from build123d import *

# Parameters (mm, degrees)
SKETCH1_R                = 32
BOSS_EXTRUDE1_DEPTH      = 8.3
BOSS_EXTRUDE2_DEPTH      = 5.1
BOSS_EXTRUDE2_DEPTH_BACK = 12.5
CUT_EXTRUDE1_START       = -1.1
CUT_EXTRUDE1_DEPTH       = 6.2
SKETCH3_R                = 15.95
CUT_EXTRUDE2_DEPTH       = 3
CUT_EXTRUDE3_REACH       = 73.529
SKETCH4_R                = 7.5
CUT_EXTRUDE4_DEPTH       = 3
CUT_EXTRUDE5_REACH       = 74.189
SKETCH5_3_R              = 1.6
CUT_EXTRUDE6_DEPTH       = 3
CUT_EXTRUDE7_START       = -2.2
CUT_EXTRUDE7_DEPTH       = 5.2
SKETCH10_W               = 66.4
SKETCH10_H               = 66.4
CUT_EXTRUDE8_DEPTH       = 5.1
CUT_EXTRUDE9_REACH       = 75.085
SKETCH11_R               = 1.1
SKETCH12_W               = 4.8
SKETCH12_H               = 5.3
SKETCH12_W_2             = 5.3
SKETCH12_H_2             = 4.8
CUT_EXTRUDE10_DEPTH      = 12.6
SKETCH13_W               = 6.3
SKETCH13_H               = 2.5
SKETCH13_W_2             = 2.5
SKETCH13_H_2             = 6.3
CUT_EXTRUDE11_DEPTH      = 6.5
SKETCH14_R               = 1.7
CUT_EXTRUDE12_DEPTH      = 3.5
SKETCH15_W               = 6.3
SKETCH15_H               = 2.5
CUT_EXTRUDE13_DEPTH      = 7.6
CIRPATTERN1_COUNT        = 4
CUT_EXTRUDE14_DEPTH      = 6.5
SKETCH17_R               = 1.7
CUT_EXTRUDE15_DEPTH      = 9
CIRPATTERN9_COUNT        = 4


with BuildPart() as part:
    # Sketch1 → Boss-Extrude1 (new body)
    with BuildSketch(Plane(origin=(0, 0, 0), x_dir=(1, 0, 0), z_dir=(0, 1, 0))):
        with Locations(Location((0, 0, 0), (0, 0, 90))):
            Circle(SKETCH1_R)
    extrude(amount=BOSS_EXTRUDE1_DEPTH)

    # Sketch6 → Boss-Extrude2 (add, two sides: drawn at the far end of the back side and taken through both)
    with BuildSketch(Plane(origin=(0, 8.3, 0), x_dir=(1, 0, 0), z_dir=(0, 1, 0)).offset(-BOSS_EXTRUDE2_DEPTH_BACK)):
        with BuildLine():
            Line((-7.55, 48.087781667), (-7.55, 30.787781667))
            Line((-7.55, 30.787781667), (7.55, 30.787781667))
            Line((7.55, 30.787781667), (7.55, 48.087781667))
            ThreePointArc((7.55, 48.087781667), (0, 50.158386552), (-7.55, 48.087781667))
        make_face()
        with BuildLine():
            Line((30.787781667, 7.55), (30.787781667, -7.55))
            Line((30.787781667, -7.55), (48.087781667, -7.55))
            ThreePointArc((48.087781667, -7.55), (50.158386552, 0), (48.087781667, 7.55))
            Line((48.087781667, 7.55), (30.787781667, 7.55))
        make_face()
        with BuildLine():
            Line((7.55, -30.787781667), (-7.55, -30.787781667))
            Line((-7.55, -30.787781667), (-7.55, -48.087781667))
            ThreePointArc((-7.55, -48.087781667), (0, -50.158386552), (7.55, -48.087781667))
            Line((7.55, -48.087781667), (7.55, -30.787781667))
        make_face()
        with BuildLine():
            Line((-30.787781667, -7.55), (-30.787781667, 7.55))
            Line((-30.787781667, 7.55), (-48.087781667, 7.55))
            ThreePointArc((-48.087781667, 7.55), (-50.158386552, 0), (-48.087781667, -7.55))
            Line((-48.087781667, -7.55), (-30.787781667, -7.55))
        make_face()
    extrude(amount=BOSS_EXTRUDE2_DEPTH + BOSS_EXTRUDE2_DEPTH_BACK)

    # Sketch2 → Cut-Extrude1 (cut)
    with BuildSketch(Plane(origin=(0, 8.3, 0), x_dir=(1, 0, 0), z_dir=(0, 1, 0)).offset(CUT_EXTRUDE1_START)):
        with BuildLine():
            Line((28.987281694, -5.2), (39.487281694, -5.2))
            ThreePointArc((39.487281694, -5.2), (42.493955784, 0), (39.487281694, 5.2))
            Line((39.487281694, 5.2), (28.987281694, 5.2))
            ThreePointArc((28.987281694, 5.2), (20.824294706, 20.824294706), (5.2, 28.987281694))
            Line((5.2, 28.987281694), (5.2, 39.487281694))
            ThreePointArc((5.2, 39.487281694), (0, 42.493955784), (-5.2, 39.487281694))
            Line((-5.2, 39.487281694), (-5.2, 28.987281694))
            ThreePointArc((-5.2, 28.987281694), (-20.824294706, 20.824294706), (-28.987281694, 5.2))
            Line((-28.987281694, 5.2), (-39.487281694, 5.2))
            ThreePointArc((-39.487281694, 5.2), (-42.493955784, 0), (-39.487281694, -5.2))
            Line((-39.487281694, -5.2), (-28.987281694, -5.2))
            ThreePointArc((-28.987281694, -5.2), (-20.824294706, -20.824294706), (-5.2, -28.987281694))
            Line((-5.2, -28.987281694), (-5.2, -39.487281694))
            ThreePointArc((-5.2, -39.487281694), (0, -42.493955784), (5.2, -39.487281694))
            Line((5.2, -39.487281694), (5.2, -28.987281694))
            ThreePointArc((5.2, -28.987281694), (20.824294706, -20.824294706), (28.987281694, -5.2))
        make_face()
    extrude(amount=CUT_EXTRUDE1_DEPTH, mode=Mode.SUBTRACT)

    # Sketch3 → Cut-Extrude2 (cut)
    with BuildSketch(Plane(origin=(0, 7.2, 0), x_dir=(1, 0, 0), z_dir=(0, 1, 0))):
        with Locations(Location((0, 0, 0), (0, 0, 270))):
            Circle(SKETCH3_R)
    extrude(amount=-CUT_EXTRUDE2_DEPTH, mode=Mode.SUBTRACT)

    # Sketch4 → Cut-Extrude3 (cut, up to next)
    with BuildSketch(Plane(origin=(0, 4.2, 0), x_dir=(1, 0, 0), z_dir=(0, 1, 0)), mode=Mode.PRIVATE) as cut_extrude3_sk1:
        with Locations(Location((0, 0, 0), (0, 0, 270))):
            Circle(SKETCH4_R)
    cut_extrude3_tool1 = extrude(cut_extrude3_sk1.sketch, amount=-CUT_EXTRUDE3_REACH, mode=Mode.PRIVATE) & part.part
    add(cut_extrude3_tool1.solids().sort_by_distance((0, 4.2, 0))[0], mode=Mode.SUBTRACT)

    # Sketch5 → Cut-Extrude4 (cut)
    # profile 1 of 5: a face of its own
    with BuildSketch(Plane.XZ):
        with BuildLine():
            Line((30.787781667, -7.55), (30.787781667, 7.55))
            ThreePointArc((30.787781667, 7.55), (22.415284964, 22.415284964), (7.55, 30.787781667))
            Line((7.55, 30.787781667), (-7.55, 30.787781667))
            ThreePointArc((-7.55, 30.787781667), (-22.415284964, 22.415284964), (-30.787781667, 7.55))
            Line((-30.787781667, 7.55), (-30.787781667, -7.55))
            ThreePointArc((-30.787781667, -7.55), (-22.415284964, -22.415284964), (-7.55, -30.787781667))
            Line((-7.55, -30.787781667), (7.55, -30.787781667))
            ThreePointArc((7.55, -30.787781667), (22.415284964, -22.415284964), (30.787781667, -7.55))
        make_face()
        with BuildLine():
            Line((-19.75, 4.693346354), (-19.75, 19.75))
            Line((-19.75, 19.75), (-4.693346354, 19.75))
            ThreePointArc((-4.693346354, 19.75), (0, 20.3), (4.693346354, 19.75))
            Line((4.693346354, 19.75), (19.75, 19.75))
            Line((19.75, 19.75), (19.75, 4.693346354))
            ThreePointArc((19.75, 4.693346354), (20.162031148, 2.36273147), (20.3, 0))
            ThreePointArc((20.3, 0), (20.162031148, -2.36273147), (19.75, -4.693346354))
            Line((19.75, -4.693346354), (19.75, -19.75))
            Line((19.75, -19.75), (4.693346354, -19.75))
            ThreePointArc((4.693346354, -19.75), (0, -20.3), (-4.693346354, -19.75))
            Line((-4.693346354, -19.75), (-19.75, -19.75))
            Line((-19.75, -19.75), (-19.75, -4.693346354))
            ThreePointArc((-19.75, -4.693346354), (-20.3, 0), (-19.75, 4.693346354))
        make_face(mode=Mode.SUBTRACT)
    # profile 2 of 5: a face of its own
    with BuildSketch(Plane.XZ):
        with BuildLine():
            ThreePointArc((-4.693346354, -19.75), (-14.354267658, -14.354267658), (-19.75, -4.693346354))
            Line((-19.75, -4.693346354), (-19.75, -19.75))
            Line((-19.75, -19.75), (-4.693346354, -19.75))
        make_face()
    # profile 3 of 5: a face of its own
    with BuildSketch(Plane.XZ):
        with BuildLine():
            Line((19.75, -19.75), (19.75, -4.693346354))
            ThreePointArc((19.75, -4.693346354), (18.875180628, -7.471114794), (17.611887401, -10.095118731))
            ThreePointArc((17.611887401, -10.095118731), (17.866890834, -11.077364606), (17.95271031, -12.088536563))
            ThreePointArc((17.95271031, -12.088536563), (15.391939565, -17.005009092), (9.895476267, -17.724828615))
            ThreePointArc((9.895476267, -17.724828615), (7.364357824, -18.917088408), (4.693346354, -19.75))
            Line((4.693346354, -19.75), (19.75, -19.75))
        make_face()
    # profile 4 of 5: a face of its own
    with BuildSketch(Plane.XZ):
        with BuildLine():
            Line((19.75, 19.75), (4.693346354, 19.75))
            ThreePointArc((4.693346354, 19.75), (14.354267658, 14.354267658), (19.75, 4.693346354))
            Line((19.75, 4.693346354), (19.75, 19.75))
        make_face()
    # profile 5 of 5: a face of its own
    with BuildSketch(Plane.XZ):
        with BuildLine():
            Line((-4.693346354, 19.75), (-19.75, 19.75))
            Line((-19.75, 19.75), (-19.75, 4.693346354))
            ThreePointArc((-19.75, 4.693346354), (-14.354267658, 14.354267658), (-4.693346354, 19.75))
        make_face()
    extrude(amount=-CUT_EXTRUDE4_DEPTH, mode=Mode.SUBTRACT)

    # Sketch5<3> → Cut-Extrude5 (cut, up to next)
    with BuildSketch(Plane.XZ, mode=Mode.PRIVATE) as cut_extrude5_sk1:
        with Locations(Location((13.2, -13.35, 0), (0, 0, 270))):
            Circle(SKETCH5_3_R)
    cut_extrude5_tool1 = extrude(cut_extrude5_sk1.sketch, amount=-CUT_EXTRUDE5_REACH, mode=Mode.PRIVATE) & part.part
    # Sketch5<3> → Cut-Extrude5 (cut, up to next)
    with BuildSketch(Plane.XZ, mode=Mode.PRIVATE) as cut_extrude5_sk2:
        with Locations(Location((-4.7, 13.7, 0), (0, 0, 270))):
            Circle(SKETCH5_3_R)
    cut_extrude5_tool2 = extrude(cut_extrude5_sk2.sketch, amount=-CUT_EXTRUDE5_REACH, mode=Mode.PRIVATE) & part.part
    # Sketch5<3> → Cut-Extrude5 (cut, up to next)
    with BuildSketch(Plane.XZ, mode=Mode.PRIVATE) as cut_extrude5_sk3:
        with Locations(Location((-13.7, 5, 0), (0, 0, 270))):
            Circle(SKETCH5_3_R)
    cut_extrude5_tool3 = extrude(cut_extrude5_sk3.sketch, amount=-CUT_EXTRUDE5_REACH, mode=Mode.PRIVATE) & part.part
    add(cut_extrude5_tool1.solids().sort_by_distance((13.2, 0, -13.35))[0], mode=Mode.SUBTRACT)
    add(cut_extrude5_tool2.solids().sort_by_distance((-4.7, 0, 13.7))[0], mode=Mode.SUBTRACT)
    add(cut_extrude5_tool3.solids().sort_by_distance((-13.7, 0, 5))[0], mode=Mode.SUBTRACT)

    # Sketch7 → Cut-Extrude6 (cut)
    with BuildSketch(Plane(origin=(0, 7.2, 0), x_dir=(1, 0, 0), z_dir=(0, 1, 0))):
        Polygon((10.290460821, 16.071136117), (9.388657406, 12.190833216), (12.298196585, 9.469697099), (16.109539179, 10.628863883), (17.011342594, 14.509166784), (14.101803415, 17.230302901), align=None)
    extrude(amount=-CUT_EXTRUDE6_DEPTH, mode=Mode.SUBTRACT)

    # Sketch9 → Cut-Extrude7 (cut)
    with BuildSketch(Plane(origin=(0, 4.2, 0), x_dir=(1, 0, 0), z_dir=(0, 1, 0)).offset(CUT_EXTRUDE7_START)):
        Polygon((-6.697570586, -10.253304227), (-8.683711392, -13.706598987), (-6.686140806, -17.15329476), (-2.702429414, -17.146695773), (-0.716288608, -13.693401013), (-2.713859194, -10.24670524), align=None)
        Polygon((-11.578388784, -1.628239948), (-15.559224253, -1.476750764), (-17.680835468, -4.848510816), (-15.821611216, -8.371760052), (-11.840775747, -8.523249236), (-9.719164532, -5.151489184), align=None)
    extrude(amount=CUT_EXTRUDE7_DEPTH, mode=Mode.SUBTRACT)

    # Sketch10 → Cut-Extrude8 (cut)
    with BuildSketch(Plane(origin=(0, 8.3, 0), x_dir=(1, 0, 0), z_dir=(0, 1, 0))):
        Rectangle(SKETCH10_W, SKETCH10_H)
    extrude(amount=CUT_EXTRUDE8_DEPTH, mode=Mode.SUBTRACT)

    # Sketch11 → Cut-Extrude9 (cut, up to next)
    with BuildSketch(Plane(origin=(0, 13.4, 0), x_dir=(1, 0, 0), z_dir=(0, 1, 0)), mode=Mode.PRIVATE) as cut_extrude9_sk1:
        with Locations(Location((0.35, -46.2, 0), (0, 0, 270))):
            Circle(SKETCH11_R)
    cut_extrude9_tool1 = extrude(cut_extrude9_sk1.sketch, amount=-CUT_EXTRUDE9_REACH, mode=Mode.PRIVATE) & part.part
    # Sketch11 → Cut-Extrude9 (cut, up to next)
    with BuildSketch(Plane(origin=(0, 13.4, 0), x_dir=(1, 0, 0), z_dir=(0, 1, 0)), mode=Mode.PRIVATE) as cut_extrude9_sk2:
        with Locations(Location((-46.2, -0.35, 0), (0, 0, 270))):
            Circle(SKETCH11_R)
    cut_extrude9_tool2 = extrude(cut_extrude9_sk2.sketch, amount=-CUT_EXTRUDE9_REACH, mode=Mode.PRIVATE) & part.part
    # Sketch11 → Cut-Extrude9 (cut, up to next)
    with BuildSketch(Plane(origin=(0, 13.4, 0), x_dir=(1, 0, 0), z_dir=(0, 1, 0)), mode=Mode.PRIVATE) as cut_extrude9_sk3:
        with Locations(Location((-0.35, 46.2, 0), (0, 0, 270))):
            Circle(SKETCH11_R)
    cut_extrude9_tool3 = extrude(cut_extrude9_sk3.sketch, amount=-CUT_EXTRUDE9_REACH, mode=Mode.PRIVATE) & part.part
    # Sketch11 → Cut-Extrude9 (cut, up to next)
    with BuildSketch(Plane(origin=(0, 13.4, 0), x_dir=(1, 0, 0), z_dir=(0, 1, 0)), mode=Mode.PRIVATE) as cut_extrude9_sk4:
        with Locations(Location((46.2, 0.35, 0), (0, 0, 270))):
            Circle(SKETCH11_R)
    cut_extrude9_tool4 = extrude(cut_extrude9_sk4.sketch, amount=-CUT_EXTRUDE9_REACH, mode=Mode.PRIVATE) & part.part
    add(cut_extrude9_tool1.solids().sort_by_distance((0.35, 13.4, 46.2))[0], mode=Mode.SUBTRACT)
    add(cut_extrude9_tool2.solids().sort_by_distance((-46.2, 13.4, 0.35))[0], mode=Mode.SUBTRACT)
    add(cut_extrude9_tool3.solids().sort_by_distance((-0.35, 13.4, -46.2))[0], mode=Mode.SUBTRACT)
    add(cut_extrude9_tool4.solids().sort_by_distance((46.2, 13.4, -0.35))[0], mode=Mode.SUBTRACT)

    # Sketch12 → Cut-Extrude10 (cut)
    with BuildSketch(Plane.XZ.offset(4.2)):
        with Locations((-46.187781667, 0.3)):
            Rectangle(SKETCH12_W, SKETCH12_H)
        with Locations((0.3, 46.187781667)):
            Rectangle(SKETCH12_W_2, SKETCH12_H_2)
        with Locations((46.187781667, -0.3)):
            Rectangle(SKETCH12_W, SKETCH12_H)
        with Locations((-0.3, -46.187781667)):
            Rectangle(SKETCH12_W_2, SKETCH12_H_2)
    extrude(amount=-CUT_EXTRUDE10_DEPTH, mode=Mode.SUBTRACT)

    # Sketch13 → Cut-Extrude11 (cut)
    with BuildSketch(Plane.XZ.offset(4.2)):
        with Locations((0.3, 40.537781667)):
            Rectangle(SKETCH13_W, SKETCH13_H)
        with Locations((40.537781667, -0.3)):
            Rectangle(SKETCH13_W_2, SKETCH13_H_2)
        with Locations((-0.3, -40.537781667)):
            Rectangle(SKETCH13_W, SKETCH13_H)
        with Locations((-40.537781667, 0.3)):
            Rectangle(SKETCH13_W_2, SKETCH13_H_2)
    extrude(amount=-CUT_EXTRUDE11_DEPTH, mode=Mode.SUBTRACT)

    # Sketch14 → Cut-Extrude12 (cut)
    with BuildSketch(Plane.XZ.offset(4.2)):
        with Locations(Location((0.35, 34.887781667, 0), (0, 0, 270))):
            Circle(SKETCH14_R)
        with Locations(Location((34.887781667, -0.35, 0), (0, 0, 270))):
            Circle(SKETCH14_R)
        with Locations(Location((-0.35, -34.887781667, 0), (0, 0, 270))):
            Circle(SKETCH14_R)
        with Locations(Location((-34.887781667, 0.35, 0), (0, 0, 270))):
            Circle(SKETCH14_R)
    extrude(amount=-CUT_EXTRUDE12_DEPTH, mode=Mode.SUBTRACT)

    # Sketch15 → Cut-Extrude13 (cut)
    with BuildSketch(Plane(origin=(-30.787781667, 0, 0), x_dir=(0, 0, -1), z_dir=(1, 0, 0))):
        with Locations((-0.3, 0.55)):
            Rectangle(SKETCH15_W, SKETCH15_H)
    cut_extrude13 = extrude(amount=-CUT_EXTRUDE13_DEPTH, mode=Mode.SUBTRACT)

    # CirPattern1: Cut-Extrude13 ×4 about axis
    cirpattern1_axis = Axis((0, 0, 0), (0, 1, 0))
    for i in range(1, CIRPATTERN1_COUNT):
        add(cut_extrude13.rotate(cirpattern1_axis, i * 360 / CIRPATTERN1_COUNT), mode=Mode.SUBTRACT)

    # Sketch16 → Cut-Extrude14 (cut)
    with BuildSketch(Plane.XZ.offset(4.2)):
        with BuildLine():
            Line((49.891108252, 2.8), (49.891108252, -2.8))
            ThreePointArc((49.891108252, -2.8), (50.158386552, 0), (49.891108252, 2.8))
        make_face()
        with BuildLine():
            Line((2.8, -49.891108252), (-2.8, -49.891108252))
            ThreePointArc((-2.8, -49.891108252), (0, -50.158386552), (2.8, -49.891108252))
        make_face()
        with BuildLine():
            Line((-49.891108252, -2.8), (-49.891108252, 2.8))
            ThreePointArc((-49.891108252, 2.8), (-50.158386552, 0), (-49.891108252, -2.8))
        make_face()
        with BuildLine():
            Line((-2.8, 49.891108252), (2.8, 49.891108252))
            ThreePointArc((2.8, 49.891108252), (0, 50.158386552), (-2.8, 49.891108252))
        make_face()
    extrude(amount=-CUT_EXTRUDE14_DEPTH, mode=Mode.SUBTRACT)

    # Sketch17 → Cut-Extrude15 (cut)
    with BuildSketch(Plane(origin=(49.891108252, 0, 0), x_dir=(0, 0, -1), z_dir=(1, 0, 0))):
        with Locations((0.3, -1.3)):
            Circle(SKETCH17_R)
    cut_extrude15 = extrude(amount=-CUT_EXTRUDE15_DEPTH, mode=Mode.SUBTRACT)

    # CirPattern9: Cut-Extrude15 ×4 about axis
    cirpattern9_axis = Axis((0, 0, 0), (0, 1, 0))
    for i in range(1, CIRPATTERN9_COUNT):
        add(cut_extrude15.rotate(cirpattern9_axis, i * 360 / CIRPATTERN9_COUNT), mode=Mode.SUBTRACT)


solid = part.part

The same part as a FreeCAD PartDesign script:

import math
import FreeCAD as App
import Part
import Sketcher

V = App.Vector
Q = App.Units.Quantity


def add_polygon(sketch, points):
    """Adds a closed chain of lines whose ends are joined by coincident constraints."""
    first, n = sketch.GeometryCount, len(points)
    for a, b in zip(points, points[1:] + points[:1]):
        sketch.addGeometry(Part.LineSegment(App.Vector(*a, 0), App.Vector(*b, 0)), False)
    for i in range(n):
        sketch.addConstraint(Sketcher.Constraint("Coincident", first + i, 2, first + (i + 1) % n, 1))

doc = App.newDocument("Part")
body = doc.addObject("PartDesign::Body", "Body")

# Sketch on XZ plane
sketch1 = body.newObject("Sketcher::SketchObject", "Sketch")
sketch1.AttachmentSupport = (doc.getObject("XZ_Plane"), [""])
sketch1.MapMode = "FlatFace"
sketch1.addGeometry(Part.Circle(V(0, 0, 0), V(0, 0, 1), 32), False)
sketch1.addConstraint([
    Sketcher.Constraint("Coincident", 0, 3, -1, 1),
    Sketcher.Constraint("Diameter", 0, Q("64 mm")),
])
pad1 = body.newObject("PartDesign::Pad", "Pad")
pad1.Profile = sketch1
pad1.Length = 8.3
pad1.Reversed = True

# Sketch on XZ plane
sketch2 = body.newObject("Sketcher::SketchObject", "Sketch001")
sketch2.AttachmentSupport = (doc.getObject("XZ_Plane"), [""])
sketch2.MapMode = "FlatFace"
sketch2.AttachmentOffset = App.Placement(V(0, 0, -8.3), App.Rotation())
sketch2.addGeometry([
    Part.LineSegment(V(-8, -48, 0), V(-8, -31, 0)),  # 0
    Part.LineSegment(V(-8, -31, 0), V(8, -31, 0)),  # 1
    Part.LineSegment(V(8, -31, 0), V(8, -48, 0)),  # 2
    Part.ArcOfCircle(Part.Circle(V(0, -35, 0), V(0, 0, 1), 15), math.radians(-121), math.radians(-59)),  # 3
    Part.LineSegment(V(31, -8, 0), V(31, 8, 0)),  # 4
    Part.LineSegment(V(31, 8, 0), V(48, 8, 0)),  # 5
    Part.ArcOfCircle(Part.Circle(V(35, 0, 0), V(0, 0, 1), 15), math.radians(-31), math.radians(31)),  # 6
    Part.LineSegment(V(48, -8, 0), V(31, -8, 0)),  # 7
    Part.LineSegment(V(8, 31, 0), V(-8, 31, 0)),  # 8
    Part.LineSegment(V(-8, 31, 0), V(-8, 48, 0)),  # 9
    Part.ArcOfCircle(Part.Circle(V(0, 35, 0), V(0, 0, 1), 15), math.radians(59), math.radians(121)),  # 10
    Part.LineSegment(V(8, 48, 0), V(8, 31, 0)),  # 11
    Part.LineSegment(V(-31, 8, 0), V(-31, -8, 0)),  # 12
    Part.LineSegment(V(-31, -8, 0), V(-48, -8, 0)),  # 13
    Part.ArcOfCircle(Part.Circle(V(-35, 0, 0), V(0, 0, 1), 15), math.radians(149), math.radians(211)),  # 14
    Part.LineSegment(V(-48, 8, 0), V(-31, 8, 0)),  # 15
], False)
sketch2.addConstraint([
    Sketcher.Constraint("Coincident", 0, 2, 1, 1),
    Sketcher.Constraint("Coincident", 1, 2, 2, 1),
    Sketcher.Constraint("Coincident", 2, 2, 3, 2),
    Sketcher.Constraint("Coincident", 3, 1, 0, 1),
    Sketcher.Constraint("Coincident", 4, 2, 5, 1),
    Sketcher.Constraint("Coincident", 5, 2, 6, 2),
    Sketcher.Constraint("Coincident", 6, 1, 7, 1),
    Sketcher.Constraint("Coincident", 7, 2, 4, 1),
    Sketcher.Constraint("Coincident", 8, 2, 9, 1),
    Sketcher.Constraint("Coincident", 9, 2, 10, 2),
    Sketcher.Constraint("Coincident", 10, 1, 11, 1),
    Sketcher.Constraint("Coincident", 11, 2, 8, 1),
    Sketcher.Constraint("Coincident", 12, 2, 13, 1),
    Sketcher.Constraint("Coincident", 13, 2, 14, 2),
    Sketcher.Constraint("Coincident", 14, 1, 15, 1),
    Sketcher.Constraint("Coincident", 15, 2, 12, 1),
    Sketcher.Constraint("Vertical", 0),
    Sketcher.Constraint("Horizontal", 1),
    Sketcher.Constraint("Vertical", 2),
    Sketcher.Constraint("Vertical", 4),
    Sketcher.Constraint("Horizontal", 5),
    Sketcher.Constraint("Horizontal", 7),
    Sketcher.Constraint("Horizontal", 8),
    Sketcher.Constraint("Vertical", 9),
    Sketcher.Constraint("Vertical", 11),
    Sketcher.Constraint("Vertical", 12),
    Sketcher.Constraint("Horizontal", 13),
    Sketcher.Constraint("Horizontal", 15),
    Sketcher.Constraint("Equal", 3, 6),
    Sketcher.Constraint("Equal", 6, 10),
    Sketcher.Constraint("Equal", 10, 14),
    Sketcher.Constraint("Symmetric", 3, 3, 10, 3, -1, 1),
    Sketcher.Constraint("Symmetric", 6, 3, 14, 3, -1, 1),
    Sketcher.Constraint("Symmetric", 1, 2, 8, 2, -1, 1),
    Sketcher.Constraint("Symmetric", 4, 2, 12, 2, -1, 1),
    Sketcher.Constraint("Symmetric", 2, 2, 3, 1, -2),
    Sketcher.Constraint("Symmetric", 6, 1, 13, 2, -2),
    Sketcher.Constraint("Horizontal", 9, 2, 10, 1),
    Sketcher.Constraint("Horizontal", 5, 2, 14, 1),
    Sketcher.Constraint("Equal", 15, 0),
    Sketcher.Constraint("Equal", 8, 4),
    Sketcher.Constraint("Radius", 3, Q("14.8 mm")),
    Sketcher.Constraint("DistanceX", 1, 1, 1, 2, Q("15.1 mm")),
    Sketcher.Constraint("DistanceX", 5, 1, 5, 2, Q("17.3 mm")),
    Sketcher.Constraint("DistanceY", 0, 2, -1, 1, Q("30.787782 mm")),
    Sketcher.Constraint("DistanceX", -1, 1, 4, 2, Q("30.787782 mm")),
])
pad2 = body.newObject("PartDesign::Pad", "Pad001")
pad2.Profile = sketch2
pad2.Type = "TwoLengths"
pad2.Length = 5.1
pad2.Length2 = 12.5
pad2.Reversed = True

# Sketch on XZ plane
sketch3 = body.newObject("Sketcher::SketchObject", "Sketch002")
sketch3.AttachmentSupport = (doc.getObject("XZ_Plane"), [""])
sketch3.MapMode = "FlatFace"
sketch3.AttachmentOffset = App.Placement(V(0, 0, -7.2), App.Rotation())
sketch3.addGeometry([
    Part.LineSegment(V(29, 5, 0), V(39, 5, 0)),  # 0
    Part.ArcOfCircle(Part.Circle(V(36, 0, 0), V(0, 0, 1), 6), math.radians(-60), math.radians(60)),  # 1
    Part.LineSegment(V(39, -5, 0), V(29, -5, 0)),  # 2
    Part.ArcOfCircle(Part.Circle(V(0, 0, 0), V(0, 0, 1), 29), math.radians(-80), math.radians(-10)),  # 3
    Part.LineSegment(V(5, -29, 0), V(5, -39, 0)),  # 4
    Part.ArcOfCircle(Part.Circle(V(0, -36, 0), V(0, 0, 1), 6), math.radians(-150), math.radians(-30)),  # 5
    Part.LineSegment(V(-5, -39, 0), V(-5, -29, 0)),  # 6
    Part.ArcOfCircle(Part.Circle(V(0, 0, 0), V(0, 0, 1), 29), math.radians(-170), math.radians(-100)),  # 7
    Part.LineSegment(V(-29, -5, 0), V(-39, -5, 0)),  # 8
    Part.ArcOfCircle(Part.Circle(V(-36, 0, 0), V(0, 0, 1), 6), math.radians(120), math.radians(240)),  # 9
    Part.LineSegment(V(-39, 5, 0), V(-29, 5, 0)),  # 10
    Part.ArcOfCircle(Part.Circle(V(0, 0, 0), V(0, 0, 1), 29), math.radians(100), math.radians(170)),  # 11
    Part.LineSegment(V(-5, 29, 0), V(-5, 39, 0)),  # 12
    Part.ArcOfCircle(Part.Circle(V(0, 36, 0), V(0, 0, 1), 6), math.radians(30), math.radians(150)),  # 13
    Part.LineSegment(V(5, 39, 0), V(5, 29, 0)),  # 14
    Part.ArcOfCircle(Part.Circle(V(0, 0, 0), V(0, 0, 1), 29), math.radians(10), math.radians(80)),  # 15
], False)
sketch3.addConstraint([
    Sketcher.Constraint("Coincident", 0, 2, 1, 2),
    Sketcher.Constraint("Coincident", 1, 1, 2, 1),
    Sketcher.Constraint("Coincident", 2, 2, 3, 2),
    Sketcher.Constraint("Coincident", 3, 1, 4, 1),
    Sketcher.Constraint("Coincident", 4, 2, 5, 2),
    Sketcher.Constraint("Coincident", 5, 1, 6, 1),
    Sketcher.Constraint("Coincident", 6, 2, 7, 2),
    Sketcher.Constraint("Coincident", 7, 1, 8, 1),
    Sketcher.Constraint("Coincident", 8, 2, 9, 2),
    Sketcher.Constraint("Coincident", 9, 1, 10, 1),
    Sketcher.Constraint("Coincident", 10, 2, 11, 2),
    Sketcher.Constraint("Coincident", 11, 1, 12, 1),
    Sketcher.Constraint("Coincident", 12, 2, 13, 2),
    Sketcher.Constraint("Coincident", 13, 1, 14, 1),
    Sketcher.Constraint("Coincident", 14, 2, 15, 2),
    Sketcher.Constraint("Coincident", 15, 1, 0, 1),
    Sketcher.Constraint("Horizontal", 0),
    Sketcher.Constraint("Horizontal", 2),
    Sketcher.Constraint("Vertical", 4),
    Sketcher.Constraint("Vertical", 6),
    Sketcher.Constraint("Horizontal", 8),
    Sketcher.Constraint("Horizontal", 10),
    Sketcher.Constraint("Vertical", 12),
    Sketcher.Constraint("Vertical", 14),
    Sketcher.Constraint("Coincident", 3, 3, -1, 1),
    Sketcher.Constraint("Coincident", 7, 3, -1, 1),
    Sketcher.Constraint("Coincident", 11, 3, -1, 1),
    Sketcher.Constraint("Coincident", 15, 3, -1, 1),
    Sketcher.Constraint("Equal", 1, 5),
    Sketcher.Constraint("Equal", 3, 7),
    Sketcher.Constraint("Equal", 5, 9),
    Sketcher.Constraint("Equal", 7, 11),
    Sketcher.Constraint("Equal", 9, 13),
    Sketcher.Constraint("Equal", 11, 15),
    Sketcher.Constraint("Symmetric", 1, 3, 9, 3, -1, 1),
    Sketcher.Constraint("Symmetric", 5, 3, 13, 3, -1, 1),
    Sketcher.Constraint("Symmetric", 4, 2, 5, 1, -2),
    Sketcher.Constraint("Symmetric", 1, 1, 8, 2, -2),
    Sketcher.Constraint("Horizontal", 0, 2, 9, 1),
    Sketcher.Constraint("Horizontal", 12, 2, 13, 1),
    Sketcher.Constraint("Vertical", 0, 2, 1, 1),
    Sketcher.Constraint("Vertical", 6, 2, 11, 1),
    Sketcher.Constraint("Equal", 10, 4),
    Sketcher.Constraint("Radius", 1, Q("6 mm")),
    Sketcher.Constraint("Radius", 3, Q("29.45 mm")),
    Sketcher.Constraint("DistanceX", 0, 1, 0, 2, Q("10.5 mm")),
    Sketcher.Constraint("DistanceY", -1, 1, 0, 2, Q("5.2 mm")),
    Sketcher.Constraint("DistanceX", -1, 1, 3, 1, Q("5.2 mm")),
])
pocket1 = body.newObject("PartDesign::Pocket", "Pocket")
pocket1.Profile = sketch3
pocket1.Length = 6.2

# Sketch on XZ plane
sketch4 = body.newObject("Sketcher::SketchObject", "Sketch003")
sketch4.AttachmentSupport = (doc.getObject("XZ_Plane"), [""])
sketch4.MapMode = "FlatFace"
sketch4.AttachmentOffset = App.Placement(V(0, 0, -7.2), App.Rotation())
sketch4.addGeometry(Part.Circle(V(0, 0, 0), V(0, 0, 1), 16), False)
sketch4.addConstraint([
    Sketcher.Constraint("Coincident", 0, 3, -1, 1),
    Sketcher.Constraint("Diameter", 0, Q("31.9 mm")),
])
pocket2 = body.newObject("PartDesign::Pocket", "Pocket001")
pocket2.Profile = sketch4
pocket2.Length = 3
pocket2.Reversed = True

# Sketch on XZ plane
sketch5 = body.newObject("Sketcher::SketchObject", "Sketch004")
sketch5.AttachmentSupport = (doc.getObject("XZ_Plane"), [""])
sketch5.MapMode = "FlatFace"
sketch5.AttachmentOffset = App.Placement(V(0, 0, -4.2), App.Rotation())
sketch5.addGeometry(Part.Circle(V(0, 0, 0), V(0, 0, 1), 8), False)
sketch5.addConstraint([
    Sketcher.Constraint("Coincident", 0, 3, -1, 1),
    Sketcher.Constraint("Diameter", 0, Q("15 mm")),
])
pocket3 = body.newObject("PartDesign::Pocket", "Pocket002")
pocket3.Profile = sketch5
pocket3.Type = "UpToFirst"
pocket3.Reversed = True

# Sketch on XZ plane
sketch6 = body.newObject("Sketcher::SketchObject", "Sketch005")
sketch6.AttachmentSupport = (doc.getObject("XZ_Plane"), [""])
sketch6.MapMode = "FlatFace"
sketch6.addGeometry([
    Part.LineSegment(V(30.8, -7.5, 0), V(30.8, 7.5, 0)),  # 0
    Part.ArcOfCircle(Part.Circle(V(0, 0, 0), V(0, 0, 1), 31.7), math.radians(14), math.radians(76)),  # 1
    Part.LineSegment(V(7.5, 30.8, 0), V(-7.5, 30.8, 0)),  # 2
    Part.ArcOfCircle(Part.Circle(V(0, 0, 0), V(0, 0, 1), 31.7), math.radians(104), math.radians(166)),  # 3
    Part.LineSegment(V(-30.8, 7.5, 0), V(-30.8, -7.5, 0)),  # 4
    Part.ArcOfCircle(Part.Circle(V(0, 0, 0), V(0, 0, 1), 31.7), math.radians(-166), math.radians(-104)),  # 5
    Part.LineSegment(V(-7.5, -30.8, 0), V(7.5, -30.8, 0)),  # 6
    Part.ArcOfCircle(Part.Circle(V(0, 0, 0), V(0, 0, 1), 31.7), math.radians(-76), math.radians(-14)),  # 7
    Part.ArcOfCircle(Part.Circle(V(0, 0, 0), V(0, 0, 1), 20.3), math.radians(0), math.radians(13.37)),  # 8
    Part.ArcOfCircle(Part.Circle(V(0, 0, 0), V(0, 0, 1), 20.3), math.radians(-13.37), math.radians(0)),  # 9
    Part.ArcOfCircle(Part.Circle(V(0, 0, 0), V(0, 0, 1), 20.3), math.radians(-29.82), math.radians(-13.37)),  # 10
    Part.ArcOfCircle(Part.Circle(V(12, -12.1, 0), V(0, 0, 1), 6), math.radians(0), math.radians(19.4)),  # 11
    Part.ArcOfCircle(Part.Circle(V(12, -12.1, 0), V(0, 0, 1), 6), math.radians(-110), math.radians(0)),  # 12
    Part.ArcOfCircle(Part.Circle(V(0, 0, 0), V(0, 0, 1), 20.3), math.radians(-76.63), math.radians(-60.83)),  # 13
    Part.ArcOfCircle(Part.Circle(V(0, 0, 0), V(0, 0, 1), 20.3), math.radians(13), math.radians(283)),  # 14
], False)
sketch6.addConstraint([
    Sketcher.Constraint("Coincident", 0, 2, 1, 1),
    Sketcher.Constraint("Coincident", 1, 2, 2, 1),
    Sketcher.Constraint("Coincident", 2, 2, 3, 1),
    Sketcher.Constraint("Coincident", 3, 2, 4, 1),
    Sketcher.Constraint("Coincident", 4, 2, 5, 1),
    Sketcher.Constraint("Coincident", 5, 2, 6, 1),
    Sketcher.Constraint("Coincident", 6, 2, 7, 1),
    Sketcher.Constraint("Coincident", 7, 2, 0, 1),
    Sketcher.Constraint("Tangent", 8, 1, 9, 2),
    Sketcher.Constraint("Tangent", 9, 1, 10, 2),
    Sketcher.Constraint("Coincident", 10, 1, 11, 2),
    Sketcher.Constraint("Tangent", 11, 1, 12, 2),
    Sketcher.Constraint("Coincident", 12, 1, 13, 2),
    Sketcher.Constraint("Tangent", 13, 1, 14, 2),
    Sketcher.Constraint("Tangent", 14, 1, 8, 2),
    Sketcher.Constraint("Vertical", 0),
    Sketcher.Constraint("Horizontal", 2),
    Sketcher.Constraint("Vertical", 4),
    Sketcher.Constraint("Horizontal", 6),
    Sketcher.Constraint("Coincident", 1, 3, -1, 1),
    Sketcher.Constraint("Coincident", 3, 3, -1, 1),
    Sketcher.Constraint("Coincident", 5, 3, -1, 1),
    Sketcher.Constraint("Coincident", 7, 3, -1, 1),
    Sketcher.Constraint("Coincident", 8, 3, -1, 1),
    Sketcher.Constraint("Coincident", 10, 3, -1, 1),
    Sketcher.Constraint("Coincident", 13, 3, -1, 1),
    Sketcher.Constraint("Equal", 1, 3),
    Sketcher.Constraint("Equal", 3, 5),
    Sketcher.Constraint("Equal", 5, 7),
    Sketcher.Constraint("Equal", 11, 12),
    Sketcher.Constraint("PointOnObject", 8, 1, -1),
    Sketcher.Constraint("Horizontal", 0, 2, 3, 2),
    Sketcher.Constraint("Horizontal", 12, 3, 11, 1),
    Sketcher.Constraint("Vertical", 2, 2, 5, 2),
    Sketcher.Constraint("Vertical", 9, 1, 14, 1),
    Sketcher.Constraint("Equal", 6, 0),
    Sketcher.Constraint("Radius", 11, Q("6 mm")),
    Sketcher.Constraint("Radius", 1, Q("31.7 mm")),
    Sketcher.Constraint("Radius", 8, Q("20.3 mm")),
    Sketcher.Constraint("DistanceX", 2, 2, 2, 1, Q("15.1 mm")),
    Sketcher.Constraint("DistanceX", -1, 1, 9, 1, Q("19.75 mm")),
    Sketcher.Constraint("DistanceY", 13, 1, -1, 1, Q("19.75 mm")),
    Sketcher.Constraint("DistanceX", -1, 1, 11, 3, Q("11.95271 mm")),
    Sketcher.Constraint("DistanceY", 10, 1, -1, 1, Q("10.095119 mm")),
])
pocket4 = body.newObject("PartDesign::Pocket", "Pocket003")
pocket4.Profile = sketch6
pocket4.Length = 3

# Sketch on XZ plane
sketch7 = body.newObject("Sketcher::SketchObject", "Sketch006")
sketch7.AttachmentSupport = (doc.getObject("XZ_Plane"), [""])
sketch7.MapMode = "FlatFace"
sketch7.addGeometry(Part.Circle(V(13.2, -13.3, 0), V(0, 0, 1), 1.6), False)
sketch7.addConstraint([
    Sketcher.Constraint("Diameter", 0, Q("3.2 mm")),
    Sketcher.Constraint("DistanceX", -1, 1, 0, 3, Q("13.2 mm")),
    Sketcher.Constraint("DistanceY", 0, 3, -1, 1, Q("13.35 mm")),
])
pocket5 = body.newObject("PartDesign::Pocket", "Pocket004")
pocket5.Profile = sketch7
pocket5.Type = "UpToFirst"

# Sketch on XZ plane
sketch8 = body.newObject("Sketcher::SketchObject", "Sketch007")
sketch8.AttachmentSupport = (doc.getObject("XZ_Plane"), [""])
sketch8.MapMode = "FlatFace"
sketch8.addGeometry(Part.Circle(V(-4.7, 13.7, 0), V(0, 0, 1), 1.6), False)
sketch8.addConstraint([
    Sketcher.Constraint("Diameter", 0, Q("3.2 mm")),
    Sketcher.Constraint("DistanceX", 0, 3, -1, 1, Q("4.7 mm")),
    Sketcher.Constraint("DistanceY", -1, 1, 0, 3, Q("13.7 mm")),
])
pocket6 = body.newObject("PartDesign::Pocket", "Pocket005")
pocket6.Profile = sketch8
pocket6.Type = "UpToFirst"

# Sketch on XZ plane
sketch9 = body.newObject("Sketcher::SketchObject", "Sketch008")
sketch9.AttachmentSupport = (doc.getObject("XZ_Plane"), [""])
sketch9.MapMode = "FlatFace"
sketch9.addGeometry(Part.Circle(V(-13.7, 5, 0), V(0, 0, 1), 1.6), False)
sketch9.addConstraint([
    Sketcher.Constraint("Diameter", 0, Q("3.2 mm")),
    Sketcher.Constraint("DistanceY", -1, 1, 0, 3, Q("5 mm")),
    Sketcher.Constraint("DistanceX", 0, 3, -1, 1, Q("13.7 mm")),
])
pocket7 = body.newObject("PartDesign::Pocket", "Pocket006")
pocket7.Profile = sketch9
pocket7.Type = "UpToFirst"

# Sketch on XZ plane
sketch10 = body.newObject("Sketcher::SketchObject", "Sketch009")
sketch10.AttachmentSupport = (doc.getObject("XZ_Plane"), [""])
sketch10.MapMode = "FlatFace"
sketch10.AttachmentOffset = App.Placement(V(0, 0, -7.2), App.Rotation())
add_polygon(sketch10, [(10.3, -16.1), (9.4, -12.2), (12.3, -9.5), (16.1, -10.6), (17, -14.5), (14.1, -17.2)])  # lines 0-5
sketch10.addConstraint([
    Sketcher.Constraint("Parallel", 0, 3),
    Sketcher.Constraint("Parallel", 1, 4),
    Sketcher.Constraint("Parallel", 2, 5),
    Sketcher.Constraint("Equal", 0, 1),
    Sketcher.Constraint("Equal", 1, 2),
    Sketcher.Constraint("Equal", 2, 3),
    Sketcher.Constraint("DistanceX", -1, 1, 2, 2, Q("16.109539 mm")),
    Sketcher.Constraint("DistanceX", -1, 1, 5, 2, Q("10.290461 mm")),
    Sketcher.Constraint("DistanceX", 0, 2, 1, 2, Q("2.909539 mm")),
    Sketcher.Constraint("DistanceX", 0, 2, 2, 2, Q("6.720882 mm")),
    Sketcher.Constraint("DistanceY", 0, 2, 2, 2, Q("1.561969 mm")),
    Sketcher.Constraint("DistanceY", 0, 2, -1, 1, Q("12.190833 mm")),
])
pocket8 = body.newObject("PartDesign::Pocket", "Pocket007")
pocket8.Profile = sketch10
pocket8.Length = 3
pocket8.Reversed = True

# Sketch on XZ plane
sketch11 = body.newObject("Sketcher::SketchObject", "Sketch010")
sketch11.AttachmentSupport = (doc.getObject("XZ_Plane"), [""])
sketch11.MapMode = "FlatFace"
sketch11.AttachmentOffset = App.Placement(V(0, 0, -2), App.Rotation())
add_polygon(sketch11, [(-6.7, 10.3), (-8.7, 13.7), (-6.7, 17.2), (-2.7, 17.1), (-0.7, 13.7), (-2.7, 10.2)])  # lines 0-5
add_polygon(sketch11, [(-11.6, 1.6), (-15.6, 1.5), (-17.7, 4.8), (-15.8, 8.4), (-11.8, 8.5), (-9.7, 5.2)])  # lines 6-11
sketch11.addConstraint([
    Sketcher.Constraint("Parallel", 0, 3),
    Sketcher.Constraint("Parallel", 1, 4),
    Sketcher.Constraint("Parallel", 2, 5),
    Sketcher.Constraint("Parallel", 6, 9),
    Sketcher.Constraint("Parallel", 7, 10),
    Sketcher.Constraint("Parallel", 8, 11),
    Sketcher.Constraint("Equal", 0, 1),
    Sketcher.Constraint("Equal", 1, 2),
    Sketcher.Constraint("Equal", 2, 3),
    Sketcher.Constraint("Equal", 5, 6),
    Sketcher.Constraint("Equal", 6, 7),
    Sketcher.Constraint("Equal", 7, 8),
    Sketcher.Constraint("Equal", 8, 9),
    Sketcher.Constraint("DistanceY", -1, 1, 0, 2, Q("13.706599 mm")),
    Sketcher.Constraint("DistanceY", -1, 1, 3, 2, Q("13.693401 mm")),
    Sketcher.Constraint("DistanceY", 2, 2, 1, 2, Q("0.006599 mm")),
    Sketcher.Constraint("DistanceX", 8, 2, 0, 2, Q("7.1379 mm")),
    Sketcher.Constraint("DistanceY", 6, 2, 9, 2, Q("7.046498 mm")),
    Sketcher.Constraint("DistanceX", 0, 2, -1, 1, Q("8.683711 mm")),
    Sketcher.Constraint("DistanceX", 1, 2, -1, 1, Q("6.686141 mm")),
    Sketcher.Constraint("DistanceX", 2, 2, -1, 1, Q("2.702429 mm")),
    Sketcher.Constraint("DistanceY", -1, 1, 6, 2, Q("1.476751 mm")),
    Sketcher.Constraint("DistanceY", -1, 1, 7, 2, Q("4.848511 mm")),
    Sketcher.Constraint("DistanceY", -1, 1, 8, 2, Q("8.37176 mm")),
])
pocket9 = body.newObject("PartDesign::Pocket", "Pocket008")
pocket9.Profile = sketch11
pocket9.Length = 5.2

# Sketch on XZ plane
sketch12 = body.newObject("Sketcher::SketchObject", "Sketch011")
sketch12.AttachmentSupport = (doc.getObject("XZ_Plane"), [""])
sketch12.MapMode = "FlatFace"
sketch12.AttachmentOffset = App.Placement(V(0, 0, -8.3), App.Rotation())
add_polygon(sketch12, [(-33, -33), (-33, 33), (33, 33), (33, -33)])  # lines 0-3
sketch12.addConstraint([
    Sketcher.Constraint("Vertical", 0),
    Sketcher.Constraint("Horizontal", 1),
    Sketcher.Constraint("Vertical", 2),
    Sketcher.Constraint("Horizontal", 3),
    Sketcher.Constraint("Symmetric", 0, 2, 2, 2, -1, 1),
    Sketcher.Constraint("Equal", 3, 0),
    Sketcher.Constraint("DistanceX", 1, 1, 1, 2, Q("66.4 mm")),
])
pocket10 = body.newObject("PartDesign::Pocket", "Pocket009")
pocket10.Profile = sketch12
pocket10.Length = 5.1

# Sketch on XZ plane
sketch13 = body.newObject("Sketcher::SketchObject", "Sketch012")
sketch13.AttachmentSupport = (doc.getObject("XZ_Plane"), [""])
sketch13.MapMode = "FlatFace"
sketch13.AttachmentOffset = App.Placement(V(0, 0, -13.4), App.Rotation())
sketch13.addGeometry(Part.Circle(V(0.3, 46.2, 0), V(0, 0, 1), 1.1), False)
sketch13.addConstraint([
    Sketcher.Constraint("Diameter", 0, Q("2.2 mm")),
    Sketcher.Constraint("DistanceY", -1, 1, 0, 3, Q("46.2 mm")),
    Sketcher.Constraint("DistanceX", -1, 1, 0, 3, Q("0.35 mm")),
])
pocket11 = body.newObject("PartDesign::Pocket", "Pocket010")
pocket11.Profile = sketch13
pocket11.Type = "UpToFirst"
pocket11.Reversed = True

# Sketch on XZ plane
sketch14 = body.newObject("Sketcher::SketchObject", "Sketch013")
sketch14.AttachmentSupport = (doc.getObject("XZ_Plane"), [""])
sketch14.MapMode = "FlatFace"
sketch14.AttachmentOffset = App.Placement(V(0, 0, -13.4), App.Rotation())
sketch14.addGeometry(Part.Circle(V(-46.2, 0.3, 0), V(0, 0, 1), 1.1), False)
sketch14.addConstraint([
    Sketcher.Constraint("Diameter", 0, Q("2.2 mm")),
    Sketcher.Constraint("DistanceX", 0, 3, -1, 1, Q("46.2 mm")),
    Sketcher.Constraint("DistanceY", -1, 1, 0, 3, Q("0.35 mm")),
])
pocket12 = body.newObject("PartDesign::Pocket", "Pocket011")
pocket12.Profile = sketch14
pocket12.Type = "UpToFirst"
pocket12.Reversed = True

# Sketch on XZ plane
sketch15 = body.newObject("Sketcher::SketchObject", "Sketch014")
sketch15.AttachmentSupport = (doc.getObject("XZ_Plane"), [""])
sketch15.MapMode = "FlatFace"
sketch15.AttachmentOffset = App.Placement(V(0, 0, -13.4), App.Rotation())
sketch15.addGeometry(Part.Circle(V(-0.3, -46.2, 0), V(0, 0, 1), 1.1), False)
sketch15.addConstraint([
    Sketcher.Constraint("Diameter", 0, Q("2.2 mm")),
    Sketcher.Constraint("DistanceY", 0, 3, -1, 1, Q("46.2 mm")),
    Sketcher.Constraint("DistanceX", 0, 3, -1, 1, Q("0.35 mm")),
])
pocket13 = body.newObject("PartDesign::Pocket", "Pocket012")
pocket13.Profile = sketch15
pocket13.Type = "UpToFirst"
pocket13.Reversed = True

# Sketch on XZ plane
sketch16 = body.newObject("Sketcher::SketchObject", "Sketch015")
sketch16.AttachmentSupport = (doc.getObject("XZ_Plane"), [""])
sketch16.MapMode = "FlatFace"
sketch16.AttachmentOffset = App.Placement(V(0, 0, -13.4), App.Rotation())
sketch16.addGeometry(Part.Circle(V(46.2, -0.3, 0), V(0, 0, 1), 1.1), False)
sketch16.addConstraint([
    Sketcher.Constraint("Diameter", 0, Q("2.2 mm")),
    Sketcher.Constraint("DistanceX", -1, 1, 0, 3, Q("46.2 mm")),
    Sketcher.Constraint("DistanceY", 0, 3, -1, 1, Q("0.35 mm")),
])
pocket14 = body.newObject("PartDesign::Pocket", "Pocket013")
pocket14.Profile = sketch16
pocket14.Type = "UpToFirst"
pocket14.Reversed = True

# Sketch on XZ plane
sketch17 = body.newObject("Sketcher::SketchObject", "Sketch016")
sketch17.AttachmentSupport = (doc.getObject("XZ_Plane"), [""])
sketch17.MapMode = "FlatFace"
sketch17.AttachmentOffset = App.Placement(V(0, 0, 4.2), App.Rotation())
add_polygon(sketch17, [(-48.6, 3), (-48.6, -2.4), (-43.8, -2.4), (-43.8, 3)])  # lines 0-3
add_polygon(sketch17, [(-2.4, 48.6), (-2.4, 43.8), (3, 43.8), (3, 48.6)])  # lines 4-7
add_polygon(sketch17, [(43.8, 2.4), (43.8, -3), (48.6, -3), (48.6, 2.4)])  # lines 8-11
add_polygon(sketch17, [(-3, -43.8), (-3, -48.6), (2.4, -48.6), (2.4, -43.8)])  # lines 12-15
sketch17.addConstraint([
    Sketcher.Constraint("Vertical", 0),
    Sketcher.Constraint("Horizontal", 1),
    Sketcher.Constraint("Vertical", 2),
    Sketcher.Constraint("Horizontal", 3),
    Sketcher.Constraint("Vertical", 4),
    Sketcher.Constraint("Horizontal", 5),
    Sketcher.Constraint("Vertical", 6),
    Sketcher.Constraint("Horizontal", 7),
    Sketcher.Constraint("Vertical", 8),
    Sketcher.Constraint("Horizontal", 9),
    Sketcher.Constraint("Vertical", 10),
    Sketcher.Constraint("Horizontal", 11),
    Sketcher.Constraint("Vertical", 12),
    Sketcher.Constraint("Horizontal", 13),
    Sketcher.Constraint("Vertical", 14),
    Sketcher.Constraint("Horizontal", 15),
    Sketcher.Constraint("Symmetric", 2, 2, 8, 2, -1, 1),
    Sketcher.Constraint("Symmetric", 0, 2, 10, 2, -1, 1),
    Sketcher.Constraint("Symmetric", 6, 2, 12, 2, -1, 1),
    Sketcher.Constraint("Symmetric", 4, 2, 14, 2, -1, 1),
    Sketcher.Constraint("Equal", 15, 0),
    Sketcher.Constraint("Equal", 11, 4),
    Sketcher.Constraint("DistanceX", 1, 1, 1, 2, Q("4.8 mm")),
    Sketcher.Constraint("DistanceX", 5, 1, 5, 2, Q("5.3 mm")),
    Sketcher.Constraint("DistanceY", 8, 2, 1, 2, Q("0.6 mm")),
    Sketcher.Constraint("DistanceX", 4, 2, -1, 1, Q("2.35 mm")),
    Sketcher.Constraint("DistanceX", 0, 2, -1, 1, Q("48.587782 mm")),
    Sketcher.Constraint("DistanceY", -1, 1, 4, 2, Q("43.787782 mm")),
])
pocket15 = body.newObject("PartDesign::Pocket", "Pocket014")
pocket15.Profile = sketch17
pocket15.Length = 12.6

# Sketch on XZ plane
sketch18 = body.newObject("Sketcher::SketchObject", "Sketch017")
sketch18.AttachmentSupport = (doc.getObject("XZ_Plane"), [""])
sketch18.MapMode = "FlatFace"
sketch18.AttachmentOffset = App.Placement(V(0, 0, 4.2), App.Rotation())
add_polygon(sketch18, [(-2.9, 41.8), (-2.9, 39.3), (3.5, 39.3), (3.5, 41.8)])  # lines 0-3
add_polygon(sketch18, [(39.3, 2.9), (39.3, -3.5), (41.8, -3.5), (41.8, 2.9)])  # lines 4-7
add_polygon(sketch18, [(-3.5, -39.3), (-3.5, -41.8), (2.9, -41.8), (2.9, -39.3)])  # lines 8-11
add_polygon(sketch18, [(-41.8, 3.5), (-41.8, -2.9), (-39.3, -2.9), (-39.3, 3.5)])  # lines 12-15
sketch18.addConstraint([
    Sketcher.Constraint("Vertical", 0),
    Sketcher.Constraint("Horizontal", 1),
    Sketcher.Constraint("Vertical", 2),
    Sketcher.Constraint("Horizontal", 3),
    Sketcher.Constraint("Vertical", 4),
    Sketcher.Constraint("Horizontal", 5),
    Sketcher.Constraint("Vertical", 6),
    Sketcher.Constraint("Horizontal", 7),
    Sketcher.Constraint("Vertical", 8),
    Sketcher.Constraint("Horizontal", 9),
    Sketcher.Constraint("Vertical", 10),
    Sketcher.Constraint("Horizontal", 11),
    Sketcher.Constraint("Vertical", 12),
    Sketcher.Constraint("Horizontal", 13),
    Sketcher.Constraint("Vertical", 14),
    Sketcher.Constraint("Horizontal", 15),
    Sketcher.Constraint("Symmetric", 2, 2, 8, 2, -1, 1),
    Sketcher.Constraint("Symmetric", 0, 2, 10, 2, -1, 1),
    Sketcher.Constraint("Symmetric", 6, 2, 12, 2, -1, 1),
    Sketcher.Constraint("Symmetric", 4, 2, 14, 2, -1, 1),
    Sketcher.Constraint("Equal", 15, 0),
    Sketcher.Constraint("Equal", 11, 4),
    Sketcher.Constraint("DistanceX", 1, 1, 1, 2, Q("6.3 mm")),
    Sketcher.Constraint("DistanceX", 5, 1, 5, 2, Q("2.5 mm")),
    Sketcher.Constraint("DistanceX", 8, 2, 0, 2, Q("0.6 mm")),
    Sketcher.Constraint("DistanceY", 4, 2, -1, 1, Q("3.45 mm")),
    Sketcher.Constraint("DistanceY", -1, 1, 0, 2, Q("39.287782 mm")),
    Sketcher.Constraint("DistanceX", -1, 1, 4, 2, Q("39.287782 mm")),
])
pocket16 = body.newObject("PartDesign::Pocket", "Pocket015")
pocket16.Profile = sketch18
pocket16.Length = 6.5

# Sketch on XZ plane
sketch19 = body.newObject("Sketcher::SketchObject", "Sketch018")
sketch19.AttachmentSupport = (doc.getObject("XZ_Plane"), [""])
sketch19.MapMode = "FlatFace"
sketch19.AttachmentOffset = App.Placement(V(0, 0, 4.2), App.Rotation())
sketch19.addGeometry([
    Part.Circle(V(0.3, 34.9, 0), V(0, 0, 1), 1.7),
    Part.Circle(V(34.9, -0.3, 0), V(0, 0, 1), 1.7),
    Part.Circle(V(-0.3, -34.9, 0), V(0, 0, 1), 1.7),
    Part.Circle(V(-34.9, 0.3, 0), V(0, 0, 1), 1.7),
], False)
sketch19.addConstraint([
    Sketcher.Constraint("Equal", 0, 1),
    Sketcher.Constraint("Equal", 1, 2),
    Sketcher.Constraint("Equal", 2, 3),
    Sketcher.Constraint("Symmetric", 0, 3, 2, 3, -1, 1),
    Sketcher.Constraint("Symmetric", 1, 3, 3, 3, -1, 1),
    Sketcher.Constraint("Diameter", 0, Q("3.4 mm")),
    Sketcher.Constraint("DistanceX", 2, 3, 0, 3, Q("0.7 mm")),
    Sketcher.Constraint("DistanceY", 1, 3, 3, 3, Q("0.7 mm")),
    Sketcher.Constraint("DistanceY", -1, 1, 0, 3, Q("34.887782 mm")),
    Sketcher.Constraint("DistanceX", -1, 1, 1, 3, Q("34.887782 mm")),
])
pocket17 = body.newObject("PartDesign::Pocket", "Pocket016")
pocket17.Profile = sketch19
pocket17.Length = 3.5

# Sketch on YZ plane
sketch20 = body.newObject("Sketcher::SketchObject", "Sketch019")
sketch20.AttachmentSupport = (doc.getObject("YZ_Plane"), [""])
sketch20.MapMode = "FlatFace"
sketch20.AttachmentOffset = App.Placement(V(0, 0, -30.787782), App.Rotation())
add_polygon(sketch20, [(1.8, 3.5), (-0.7, 3.5), (-0.7, -2.9), (1.8, -2.9)])  # lines 0-3
sketch20.addConstraint([
    Sketcher.Constraint("Horizontal", 0),
    Sketcher.Constraint("Vertical", 1),
    Sketcher.Constraint("Horizontal", 2),
    Sketcher.Constraint("Vertical", 3),
    Sketcher.Constraint("DistanceX", 0, 2, 0, 1, Q("2.5 mm")),
    Sketcher.Constraint("DistanceY", 1, 2, 1, 1, Q("6.3 mm")),
    Sketcher.Constraint("DistanceX", 0, 2, -1, 1, Q("0.7 mm")),
    Sketcher.Constraint("DistanceY", -1, 1, 0, 2, Q("3.45 mm")),
])
pocket18 = body.newObject("PartDesign::Pocket", "Pocket017")
pocket18.Profile = sketch20
pocket18.Length = 7.6
doc.recompute()

polarpattern = body.newObject("PartDesign::PolarPattern", "PolarPattern")
polarpattern.Originals = [pocket18]
polarpattern.Axis = (doc.getObject("Y_Axis"), [""])
polarpattern.Angle = 360
polarpattern.Occurrences = 4
body.Tip = polarpattern

# Sketch on XZ plane
sketch21 = body.newObject("Sketcher::SketchObject", "Sketch020")
sketch21.AttachmentSupport = (doc.getObject("XZ_Plane"), [""])
sketch21.MapMode = "FlatFace"
sketch21.AttachmentOffset = App.Placement(V(0, 0, 4.2), App.Rotation())
sketch21.addGeometry([
    Part.LineSegment(V(50, 3, 0), V(50, -3, 0)),  # 0
    Part.ArcOfCircle(Part.Circle(V(35, 0, 0), V(0, 0, 1), 15), math.radians(-11), math.radians(11)),  # 1
    Part.LineSegment(V(3, -50, 0), V(-3, -50, 0)),  # 2
    Part.ArcOfCircle(Part.Circle(V(0, -35, 0), V(0, 0, 1), 15), math.radians(-101), math.radians(-79)),  # 3
    Part.LineSegment(V(-50, -3, 0), V(-50, 3, 0)),  # 4
    Part.ArcOfCircle(Part.Circle(V(-35, 0, 0), V(0, 0, 1), 15), math.radians(169), math.radians(191)),  # 5
    Part.LineSegment(V(-3, 50, 0), V(3, 50, 0)),  # 6
    Part.ArcOfCircle(Part.Circle(V(0, 35, 0), V(0, 0, 1), 15), math.radians(79), math.radians(101)),  # 7
], False)
sketch21.addConstraint([
    Sketcher.Constraint("Coincident", 0, 1, 1, 2),
    Sketcher.Constraint("Coincident", 1, 1, 0, 2),
    Sketcher.Constraint("Coincident", 2, 1, 3, 2),
    Sketcher.Constraint("Coincident", 3, 1, 2, 2),
    Sketcher.Constraint("Coincident", 4, 1, 5, 2),
    Sketcher.Constraint("Coincident", 5, 1, 4, 2),
    Sketcher.Constraint("Coincident", 6, 1, 7, 2),
    Sketcher.Constraint("Coincident", 7, 1, 6, 2),
    Sketcher.Constraint("Vertical", 0),
    Sketcher.Constraint("Horizontal", 2),
    Sketcher.Constraint("Vertical", 4),
    Sketcher.Constraint("Horizontal", 6),
    Sketcher.Constraint("Equal", 1, 3),
    Sketcher.Constraint("Equal", 3, 5),
    Sketcher.Constraint("Equal", 5, 7),
    Sketcher.Constraint("Symmetric", 1, 3, 5, 3, -1, 1),
    Sketcher.Constraint("Symmetric", 3, 3, 7, 3, -1, 1),
    Sketcher.Constraint("Symmetric", 1, 1, 4, 1, -2),
    Sketcher.Constraint("Symmetric", 3, 1, 6, 1, -1),
    Sketcher.Constraint("Equal", 6, 0),
    Sketcher.Constraint("Radius", 1, Q("14.8 mm")),
    Sketcher.Constraint("DistanceX", 2, 2, 2, 1, Q("5.6 mm")),
    Sketcher.Constraint("DistanceX", -1, 1, 0, 1, Q("49.891108 mm")),
    Sketcher.Constraint("DistanceY", 2, 1, -1, 1, Q("49.891108 mm")),
])
pocket19 = body.newObject("PartDesign::Pocket", "Pocket018")
pocket19.Profile = sketch21
pocket19.Length = 6.5

# Sketch on YZ plane
sketch22 = body.newObject("Sketcher::SketchObject", "Sketch021")
sketch22.AttachmentSupport = (doc.getObject("YZ_Plane"), [""])
sketch22.MapMode = "FlatFace"
sketch22.AttachmentOffset = App.Placement(V(0, 0, 49.891108), App.Rotation())
sketch22.addGeometry(Part.Circle(V(-1.3, -0.3, 0), V(0, 0, 1), 1.7), False)
sketch22.addConstraint([
    Sketcher.Constraint("Diameter", 0, Q("3.4 mm")),
    Sketcher.Constraint("DistanceX", 0, 3, -1, 1, Q("1.3 mm")),
    Sketcher.Constraint("DistanceY", 0, 3, -1, 1, Q("0.3 mm")),
])
pocket20 = body.newObject("PartDesign::Pocket", "Pocket019")
pocket20.Profile = sketch22
pocket20.Length = 9
doc.recompute()

polarpattern2 = body.newObject("PartDesign::PolarPattern", "PolarPattern001")
polarpattern2.Originals = [pocket20]
polarpattern2.Axis = (doc.getObject("Y_Axis"), [""])
polarpattern2.Angle = 360
polarpattern2.Occurrences = 4
body.Tip = polarpattern2

doc.recompute()
